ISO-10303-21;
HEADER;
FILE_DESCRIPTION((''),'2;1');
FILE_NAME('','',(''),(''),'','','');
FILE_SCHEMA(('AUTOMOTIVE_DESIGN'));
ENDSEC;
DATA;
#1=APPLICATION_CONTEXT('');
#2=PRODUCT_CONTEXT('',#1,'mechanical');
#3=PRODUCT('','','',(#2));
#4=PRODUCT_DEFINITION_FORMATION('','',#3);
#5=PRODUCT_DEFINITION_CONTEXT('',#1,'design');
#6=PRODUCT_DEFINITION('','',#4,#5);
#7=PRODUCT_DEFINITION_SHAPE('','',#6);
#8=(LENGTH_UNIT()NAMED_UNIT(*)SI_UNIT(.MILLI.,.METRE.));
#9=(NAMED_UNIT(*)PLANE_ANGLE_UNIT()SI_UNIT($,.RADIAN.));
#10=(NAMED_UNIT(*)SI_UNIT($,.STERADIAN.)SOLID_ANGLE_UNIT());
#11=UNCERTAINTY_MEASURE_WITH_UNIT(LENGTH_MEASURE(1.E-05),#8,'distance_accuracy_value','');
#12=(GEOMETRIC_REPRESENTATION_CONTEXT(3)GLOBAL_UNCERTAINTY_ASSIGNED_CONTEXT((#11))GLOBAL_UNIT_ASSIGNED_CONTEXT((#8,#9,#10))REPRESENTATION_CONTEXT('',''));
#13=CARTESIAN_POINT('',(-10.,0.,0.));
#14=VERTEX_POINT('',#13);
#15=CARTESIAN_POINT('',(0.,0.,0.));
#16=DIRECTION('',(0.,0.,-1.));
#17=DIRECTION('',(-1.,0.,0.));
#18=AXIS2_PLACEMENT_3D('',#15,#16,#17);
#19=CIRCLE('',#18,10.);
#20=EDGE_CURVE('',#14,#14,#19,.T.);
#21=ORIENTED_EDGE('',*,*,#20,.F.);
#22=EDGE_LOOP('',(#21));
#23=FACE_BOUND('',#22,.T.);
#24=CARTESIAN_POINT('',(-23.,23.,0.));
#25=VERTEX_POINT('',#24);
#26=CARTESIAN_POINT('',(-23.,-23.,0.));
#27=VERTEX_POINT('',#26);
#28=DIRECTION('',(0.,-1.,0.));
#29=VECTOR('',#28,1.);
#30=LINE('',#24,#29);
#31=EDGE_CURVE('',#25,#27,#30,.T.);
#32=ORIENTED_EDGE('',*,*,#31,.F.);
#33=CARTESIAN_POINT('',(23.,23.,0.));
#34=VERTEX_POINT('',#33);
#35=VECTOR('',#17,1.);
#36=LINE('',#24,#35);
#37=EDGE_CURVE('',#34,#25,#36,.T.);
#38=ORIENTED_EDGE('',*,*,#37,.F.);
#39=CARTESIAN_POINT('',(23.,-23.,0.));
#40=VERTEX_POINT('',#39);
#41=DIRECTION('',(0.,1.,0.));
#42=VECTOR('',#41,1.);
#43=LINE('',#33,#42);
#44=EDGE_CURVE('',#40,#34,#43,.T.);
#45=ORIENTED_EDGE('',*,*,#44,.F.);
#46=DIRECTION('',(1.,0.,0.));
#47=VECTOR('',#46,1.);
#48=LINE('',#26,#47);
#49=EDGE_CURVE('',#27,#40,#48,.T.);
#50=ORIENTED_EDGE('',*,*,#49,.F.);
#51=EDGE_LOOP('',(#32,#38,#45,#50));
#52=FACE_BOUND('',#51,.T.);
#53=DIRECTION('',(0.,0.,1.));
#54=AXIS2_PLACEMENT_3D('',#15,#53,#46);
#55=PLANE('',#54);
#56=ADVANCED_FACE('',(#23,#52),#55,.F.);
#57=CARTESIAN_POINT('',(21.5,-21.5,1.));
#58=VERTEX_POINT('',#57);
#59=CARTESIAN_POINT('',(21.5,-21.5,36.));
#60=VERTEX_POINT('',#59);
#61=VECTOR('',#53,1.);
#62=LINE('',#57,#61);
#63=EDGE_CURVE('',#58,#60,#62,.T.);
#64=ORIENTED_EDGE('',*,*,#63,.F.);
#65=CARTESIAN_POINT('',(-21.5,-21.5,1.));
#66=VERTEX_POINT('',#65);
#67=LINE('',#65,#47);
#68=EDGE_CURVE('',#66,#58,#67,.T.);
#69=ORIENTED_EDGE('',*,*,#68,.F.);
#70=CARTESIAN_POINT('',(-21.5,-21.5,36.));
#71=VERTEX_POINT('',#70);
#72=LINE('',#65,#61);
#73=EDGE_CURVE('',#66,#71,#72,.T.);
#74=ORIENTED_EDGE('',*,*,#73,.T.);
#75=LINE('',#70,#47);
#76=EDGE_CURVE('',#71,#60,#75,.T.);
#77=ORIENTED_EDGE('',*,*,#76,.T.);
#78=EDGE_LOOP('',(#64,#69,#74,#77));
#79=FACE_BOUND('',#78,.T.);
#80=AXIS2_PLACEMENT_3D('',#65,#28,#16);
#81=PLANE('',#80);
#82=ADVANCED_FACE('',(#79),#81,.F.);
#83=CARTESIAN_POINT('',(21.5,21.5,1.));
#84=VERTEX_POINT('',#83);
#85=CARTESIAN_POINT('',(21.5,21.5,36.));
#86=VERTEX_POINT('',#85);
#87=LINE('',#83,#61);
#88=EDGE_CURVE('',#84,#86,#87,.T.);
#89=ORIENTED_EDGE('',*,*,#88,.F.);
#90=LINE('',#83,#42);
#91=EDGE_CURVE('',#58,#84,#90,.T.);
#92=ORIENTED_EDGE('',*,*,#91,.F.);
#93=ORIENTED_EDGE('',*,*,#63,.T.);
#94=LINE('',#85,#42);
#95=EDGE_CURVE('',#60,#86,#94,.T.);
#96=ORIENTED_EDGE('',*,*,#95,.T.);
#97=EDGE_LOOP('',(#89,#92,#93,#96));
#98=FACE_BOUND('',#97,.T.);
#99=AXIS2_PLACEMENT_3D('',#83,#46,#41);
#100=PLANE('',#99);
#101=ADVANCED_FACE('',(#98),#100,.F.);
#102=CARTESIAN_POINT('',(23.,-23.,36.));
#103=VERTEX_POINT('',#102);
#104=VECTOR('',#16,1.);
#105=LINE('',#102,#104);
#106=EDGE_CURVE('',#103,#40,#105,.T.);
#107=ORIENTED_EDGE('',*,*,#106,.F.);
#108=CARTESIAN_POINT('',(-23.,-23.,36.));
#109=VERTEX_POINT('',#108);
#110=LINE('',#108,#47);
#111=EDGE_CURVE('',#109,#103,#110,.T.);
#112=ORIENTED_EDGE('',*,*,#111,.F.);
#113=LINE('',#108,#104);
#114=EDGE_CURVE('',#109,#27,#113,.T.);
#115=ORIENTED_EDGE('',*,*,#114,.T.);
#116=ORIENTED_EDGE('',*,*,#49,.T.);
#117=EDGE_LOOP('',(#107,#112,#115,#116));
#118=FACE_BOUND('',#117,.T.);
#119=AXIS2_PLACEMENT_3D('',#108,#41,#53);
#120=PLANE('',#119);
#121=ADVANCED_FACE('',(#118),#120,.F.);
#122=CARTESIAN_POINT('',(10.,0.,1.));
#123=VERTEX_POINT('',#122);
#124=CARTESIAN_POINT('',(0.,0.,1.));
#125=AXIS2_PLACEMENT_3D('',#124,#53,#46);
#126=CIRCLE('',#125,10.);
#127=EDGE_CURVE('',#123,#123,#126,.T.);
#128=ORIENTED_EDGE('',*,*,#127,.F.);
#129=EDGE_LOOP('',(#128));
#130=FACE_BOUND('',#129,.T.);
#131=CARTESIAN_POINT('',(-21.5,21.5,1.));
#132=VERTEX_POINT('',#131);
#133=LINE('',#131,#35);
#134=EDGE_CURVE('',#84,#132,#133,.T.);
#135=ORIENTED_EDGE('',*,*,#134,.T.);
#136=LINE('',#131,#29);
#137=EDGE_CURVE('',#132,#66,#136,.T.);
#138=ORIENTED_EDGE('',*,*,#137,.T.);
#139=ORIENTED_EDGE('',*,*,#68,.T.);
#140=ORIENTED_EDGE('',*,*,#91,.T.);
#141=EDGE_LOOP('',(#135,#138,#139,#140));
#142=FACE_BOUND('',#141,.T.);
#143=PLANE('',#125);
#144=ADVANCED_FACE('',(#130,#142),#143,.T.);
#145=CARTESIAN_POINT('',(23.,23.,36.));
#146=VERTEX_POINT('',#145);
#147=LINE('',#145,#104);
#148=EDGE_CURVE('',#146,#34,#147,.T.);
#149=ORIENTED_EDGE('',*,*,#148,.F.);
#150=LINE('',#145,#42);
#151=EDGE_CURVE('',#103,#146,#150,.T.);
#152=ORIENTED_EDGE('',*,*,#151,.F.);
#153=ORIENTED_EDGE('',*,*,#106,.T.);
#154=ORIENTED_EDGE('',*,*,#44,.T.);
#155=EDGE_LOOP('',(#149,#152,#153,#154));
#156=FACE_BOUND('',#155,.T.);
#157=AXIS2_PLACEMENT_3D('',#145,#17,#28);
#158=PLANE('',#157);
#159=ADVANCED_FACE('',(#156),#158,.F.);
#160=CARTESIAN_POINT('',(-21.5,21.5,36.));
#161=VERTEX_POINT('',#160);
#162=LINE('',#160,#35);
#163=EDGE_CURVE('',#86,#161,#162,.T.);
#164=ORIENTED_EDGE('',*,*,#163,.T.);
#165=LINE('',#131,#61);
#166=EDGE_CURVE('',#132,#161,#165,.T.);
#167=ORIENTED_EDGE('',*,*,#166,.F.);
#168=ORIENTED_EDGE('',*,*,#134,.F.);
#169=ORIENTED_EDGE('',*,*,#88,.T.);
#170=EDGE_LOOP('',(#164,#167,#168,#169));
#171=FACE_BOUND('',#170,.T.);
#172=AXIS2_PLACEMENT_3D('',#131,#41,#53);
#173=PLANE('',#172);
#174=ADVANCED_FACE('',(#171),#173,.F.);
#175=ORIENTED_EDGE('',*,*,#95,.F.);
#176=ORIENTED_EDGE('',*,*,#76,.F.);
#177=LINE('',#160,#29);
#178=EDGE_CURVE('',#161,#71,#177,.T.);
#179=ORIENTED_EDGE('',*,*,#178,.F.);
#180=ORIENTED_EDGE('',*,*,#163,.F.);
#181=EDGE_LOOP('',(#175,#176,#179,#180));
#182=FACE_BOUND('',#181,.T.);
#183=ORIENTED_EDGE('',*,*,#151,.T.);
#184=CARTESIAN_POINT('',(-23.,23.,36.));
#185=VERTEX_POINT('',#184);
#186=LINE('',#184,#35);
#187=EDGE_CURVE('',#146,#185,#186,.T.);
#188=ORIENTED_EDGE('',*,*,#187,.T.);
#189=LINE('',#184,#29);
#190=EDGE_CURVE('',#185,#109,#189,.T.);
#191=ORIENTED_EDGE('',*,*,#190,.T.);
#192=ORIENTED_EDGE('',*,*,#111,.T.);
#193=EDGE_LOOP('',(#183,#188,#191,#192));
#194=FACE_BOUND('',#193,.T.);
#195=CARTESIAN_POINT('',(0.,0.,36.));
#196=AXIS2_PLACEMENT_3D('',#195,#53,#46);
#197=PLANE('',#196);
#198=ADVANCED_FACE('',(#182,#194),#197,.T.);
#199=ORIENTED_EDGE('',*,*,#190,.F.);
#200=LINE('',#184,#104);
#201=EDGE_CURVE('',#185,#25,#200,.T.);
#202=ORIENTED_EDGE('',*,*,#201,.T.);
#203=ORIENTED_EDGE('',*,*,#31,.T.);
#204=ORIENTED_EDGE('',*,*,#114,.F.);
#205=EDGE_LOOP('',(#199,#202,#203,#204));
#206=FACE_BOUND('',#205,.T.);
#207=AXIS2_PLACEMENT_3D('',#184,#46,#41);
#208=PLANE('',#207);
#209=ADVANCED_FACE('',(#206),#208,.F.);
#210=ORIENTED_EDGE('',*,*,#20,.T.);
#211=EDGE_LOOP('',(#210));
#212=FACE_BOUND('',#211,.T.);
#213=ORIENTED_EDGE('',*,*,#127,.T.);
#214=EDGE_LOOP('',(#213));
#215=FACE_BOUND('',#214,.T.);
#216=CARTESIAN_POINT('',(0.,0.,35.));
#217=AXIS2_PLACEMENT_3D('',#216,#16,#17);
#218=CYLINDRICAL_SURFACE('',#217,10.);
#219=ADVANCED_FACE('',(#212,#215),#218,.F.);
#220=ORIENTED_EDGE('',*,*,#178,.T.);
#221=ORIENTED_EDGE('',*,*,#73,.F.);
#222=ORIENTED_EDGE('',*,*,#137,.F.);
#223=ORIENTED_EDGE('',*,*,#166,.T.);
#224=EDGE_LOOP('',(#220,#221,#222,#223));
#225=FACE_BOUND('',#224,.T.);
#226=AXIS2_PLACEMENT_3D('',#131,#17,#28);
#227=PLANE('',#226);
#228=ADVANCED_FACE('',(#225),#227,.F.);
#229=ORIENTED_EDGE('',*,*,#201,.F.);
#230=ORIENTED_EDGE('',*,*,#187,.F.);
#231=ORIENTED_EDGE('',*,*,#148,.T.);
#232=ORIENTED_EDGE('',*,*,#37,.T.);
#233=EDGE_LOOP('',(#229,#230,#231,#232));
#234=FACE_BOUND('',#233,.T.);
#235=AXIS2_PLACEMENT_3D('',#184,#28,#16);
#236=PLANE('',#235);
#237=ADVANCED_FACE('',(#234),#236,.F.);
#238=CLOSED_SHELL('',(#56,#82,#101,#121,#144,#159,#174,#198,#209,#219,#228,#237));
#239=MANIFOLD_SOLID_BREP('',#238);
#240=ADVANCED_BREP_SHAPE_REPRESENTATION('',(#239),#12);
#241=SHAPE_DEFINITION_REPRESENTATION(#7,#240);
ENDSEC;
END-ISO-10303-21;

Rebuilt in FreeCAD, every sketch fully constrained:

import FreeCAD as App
import Part
import Sketcher

V = App.Vector
Q = App.Units.Quantity


def add_polygon(sketch, points):
    """Adds a closed chain of lines whose ends are joined by coincident constraints."""
    first, n = sketch.GeometryCount, len(points)
    for a, b in zip(points, points[1:] + points[:1]):
        sketch.addGeometry(Part.LineSegment(App.Vector(*a, 0), App.Vector(*b, 0)), False)
    for i in range(n):
        sketch.addConstraint(Sketcher.Constraint("Coincident", first + i, 2, first + (i + 1) % n, 1))

doc = App.newDocument("Part")
body = doc.addObject("PartDesign::Body", "Body")

sketch1 = doc.addObject("Sketcher::SketchObject", "Sketch")
body.addObject(sketch1)
sketch1.AttachmentSupport = (doc.XY_Plane, [""])
sketch1.MapMode = "FlatFace"
add_polygon(sketch1, [(-23, 23), (-23, -23), (23, -23), (23, 23)])
sketch1.addConstraint(Sketcher.Constraint("Vertical", 0))
sketch1.addConstraint(Sketcher.Constraint("Horizontal", 1))
sketch1.addConstraint(Sketcher.Constraint("Vertical", 2))
sketch1.addConstraint(Sketcher.Constraint("Horizontal", 3))
sketch1.addConstraint(Sketcher.Constraint("Symmetric", 0, 2, 2, 2, -1, 1))
sketch1.addConstraint(Sketcher.Constraint("Equal", 3, 0))
sketch1.addConstraint(Sketcher.Constraint("DistanceX", 1, 1, 1, 2, Q("46 mm")))
pad1 = doc.addObject("PartDesign::Pad", "Pad")
body.addObject(pad1)
pad1.Profile = sketch1
pad1.Length = 36

sketch2 = doc.addObject("Sketcher::SketchObject", "Sketch001")
body.addObject(sketch2)
sketch2.AttachmentSupport = (doc.XY_Plane, [""])
sketch2.MapMode = "FlatFace"
sketch2.AttachmentOffset = App.Placement(V(0, 0, 36), App.Rotation())
add_polygon(sketch2, [(-22, 22), (-22, -22), (22, -22), (22, 22)])
sketch2.addConstraint(Sketcher.Constraint("Vertical", 0))
sketch2.addConstraint(Sketcher.Constraint("Horizontal", 1))
sketch2.addConstraint(Sketcher.Constraint("Vertical", 2))
sketch2.addConstraint(Sketcher.Constraint("Horizontal", 3))
sketch2.addConstraint(Sketcher.Constraint("Symmetric", 0, 2, 2, 2, -1, 1))
sketch2.addConstraint(Sketcher.Constraint("Equal", 3, 0))
sketch2.addConstraint(Sketcher.Constraint("DistanceX", 1, 1, 1, 2, Q("43 mm")))
pocket1 = doc.addObject("PartDesign::Pocket", "Pocket")
body.addObject(pocket1)
pocket1.Profile = sketch2
pocket1.Length = 35

sketch3 = doc.addObject("Sketcher::SketchObject", "Sketch002")
body.addObject(sketch3)
sketch3.AttachmentSupport = (doc.XY_Plane, [""])
sketch3.MapMode = "FlatFace"
sketch3.addGeometry(Part.Circle(V(0, 0, 0), V(0, 0, 1), 10), False)
sketch3.addConstraint(Sketcher.Constraint("Coincident", 0, 3, -1, 1))
sketch3.addConstraint(Sketcher.Constraint("Diameter", 0, Q("20 mm")))
pocket2 = doc.addObject("PartDesign::Pocket", "Pocket001")
body.addObject(pocket2)
pocket2.Profile = sketch3
pocket2.Length = 35
pocket2.Reversed = True

doc.recompute()
